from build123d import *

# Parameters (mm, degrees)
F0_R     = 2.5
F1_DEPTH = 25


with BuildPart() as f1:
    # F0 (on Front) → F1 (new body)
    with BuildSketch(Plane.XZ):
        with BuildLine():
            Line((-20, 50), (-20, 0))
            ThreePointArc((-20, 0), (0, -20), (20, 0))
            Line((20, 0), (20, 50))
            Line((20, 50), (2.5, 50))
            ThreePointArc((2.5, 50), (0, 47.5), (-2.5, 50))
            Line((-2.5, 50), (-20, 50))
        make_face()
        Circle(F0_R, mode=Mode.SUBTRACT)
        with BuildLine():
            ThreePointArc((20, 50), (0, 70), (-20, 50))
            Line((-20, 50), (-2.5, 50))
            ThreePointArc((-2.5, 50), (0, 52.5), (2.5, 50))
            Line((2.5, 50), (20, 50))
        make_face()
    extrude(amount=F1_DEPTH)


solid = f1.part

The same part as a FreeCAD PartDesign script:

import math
import FreeCAD as App
import Part
import Sketcher
from FreeCAD import Vector

doc = App.newDocument("Part")
body = doc.addObject("PartDesign::Body", "Body")

# Sketch on XZ plane
sketch1 = doc.addObject("Sketcher::SketchObject", "Sketch")
body.addObject(sketch1)
sketch1.AttachmentSupport = (doc.XZ_Plane, [""])
sketch1.MapMode = "FlatFace"
sketch1.addGeometry(Part.LineSegment(Vector(-20, 50, 0), Vector(-20, 0, 0)), False)
sketch1.addGeometry(Part.ArcOfCircle(Part.Circle(Vector(0, 0, 0), Vector(0, 0, 1), 20), math.radians(180), math.radians(360)), False)
sketch1.addGeometry(Part.LineSegment(Vector(20, 0, 0), Vector(20, 50, 0)), False)
sketch1.addGeometry(Part.ArcOfCircle(Part.Circle(Vector(0, 50, 0), Vector(0, 0, 1), 20), math.radians(0), math.radians(180)), False)
sketch1.addGeometry(Part.Circle(Vector(0, 50, 0), Vector(0, 0, 1), 2.5), False)
sketch1.addGeometry(Part.Circle(Vector(0, 0, 0), Vector(0, 0, 1), 2.5), False)
sketch1.addConstraint(Sketcher.Constraint("Tangent", 0, 2, 1, 1))
sketch1.addConstraint(Sketcher.Constraint("Tangent", 1, 2, 2, 1))
sketch1.addConstraint(Sketcher.Constraint("Tangent", 2, 2, 3, 1))
sketch1.addConstraint(Sketcher.Constraint("Tangent", 3, 2, 0, 1))
sketch1.addConstraint(Sketcher.Constraint("Vertical", 0))
sketch1.addConstraint(Sketcher.Constraint("Vertical", 2))
sketch1.addConstraint(Sketcher.Constraint("Coincident", 1, 3, -1, 1))
sketch1.addConstraint(Sketcher.Constraint("Coincident", 5, 3, -1, 1))
sketch1.addConstraint(Sketcher.Constraint("Coincident", 4, 3, 3, 3))
sketch1.addConstraint(Sketcher.Constraint("Equal", 4, 5))
sketch1.addConstraint(Sketcher.Constraint("Diameter", 4, 5.0))
sketch1.addConstraint(Sketcher.Constraint("Radius", 1, 20.0))
sketch1.addConstraint(Sketcher.Constraint("DistanceY", 0, 2, 0, 1, 50.0))
pad1 = doc.addObject("PartDesign::Pad", "Pad")
body.addObject(pad1)
pad1.Profile = sketch1
pad1.Length = 25

doc.recompute()
